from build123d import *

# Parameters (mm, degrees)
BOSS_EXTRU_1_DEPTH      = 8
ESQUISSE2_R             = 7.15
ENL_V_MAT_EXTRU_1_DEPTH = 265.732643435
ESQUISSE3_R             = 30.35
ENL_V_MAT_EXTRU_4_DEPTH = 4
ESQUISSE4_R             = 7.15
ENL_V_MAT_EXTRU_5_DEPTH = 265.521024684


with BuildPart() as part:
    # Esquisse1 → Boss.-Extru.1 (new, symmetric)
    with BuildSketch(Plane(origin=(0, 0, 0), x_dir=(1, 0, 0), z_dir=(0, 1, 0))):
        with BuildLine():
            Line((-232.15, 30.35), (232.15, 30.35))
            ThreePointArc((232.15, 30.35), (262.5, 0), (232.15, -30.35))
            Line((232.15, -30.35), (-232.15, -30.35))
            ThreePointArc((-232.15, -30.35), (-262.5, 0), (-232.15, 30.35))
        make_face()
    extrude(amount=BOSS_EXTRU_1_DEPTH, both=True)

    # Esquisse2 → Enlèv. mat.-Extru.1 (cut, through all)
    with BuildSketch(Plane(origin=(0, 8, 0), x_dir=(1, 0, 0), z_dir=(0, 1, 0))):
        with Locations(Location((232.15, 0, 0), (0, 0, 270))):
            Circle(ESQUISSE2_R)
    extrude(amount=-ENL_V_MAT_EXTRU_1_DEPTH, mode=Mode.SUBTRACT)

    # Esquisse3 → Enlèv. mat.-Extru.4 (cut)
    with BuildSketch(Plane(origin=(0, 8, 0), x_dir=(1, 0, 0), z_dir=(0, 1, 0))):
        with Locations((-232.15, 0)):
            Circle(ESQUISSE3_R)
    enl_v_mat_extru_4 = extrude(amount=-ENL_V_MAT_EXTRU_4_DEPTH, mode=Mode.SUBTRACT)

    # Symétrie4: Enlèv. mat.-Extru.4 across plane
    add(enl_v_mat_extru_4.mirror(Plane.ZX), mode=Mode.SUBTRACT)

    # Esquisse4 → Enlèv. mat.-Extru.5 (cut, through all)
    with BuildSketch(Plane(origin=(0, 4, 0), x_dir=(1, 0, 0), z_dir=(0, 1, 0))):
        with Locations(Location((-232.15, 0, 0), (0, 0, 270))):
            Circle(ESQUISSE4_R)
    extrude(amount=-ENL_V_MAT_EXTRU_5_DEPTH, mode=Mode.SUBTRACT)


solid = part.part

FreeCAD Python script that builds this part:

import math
import FreeCAD as App
import Part
import Sketcher

doc = App.newDocument("Part")
body = doc.addObject("PartDesign::Body", "Body")

# Sketch on XZ plane
sketch1 = body.newObject("Sketcher::SketchObject", "Sketch")
sketch1.AttachmentSupport = (doc.getObject("XZ_Plane"), [""])
sketch1.MapMode = "FlatFace"
sketch1.addGeometry([
    Part.LineSegment(App.Vector(232.15, -30.35, 0), App.Vector(-232.15, -30.35, 0)),
    Part.ArcOfCircle(Part.Circle(App.Vector(-232.15, 0, 0), App.Vector(0, 0, 1), 30.35), math.radians(90), math.radians(270)),
    Part.LineSegment(App.Vector(-232.15, 30.35, 0), App.Vector(232.15, 30.35, 0)),
    Part.ArcOfCircle(Part.Circle(App.Vector(232.15, 0, 0), App.Vector(0, 0, 1), 30.35), math.radians(-90), math.radians(90)),
], False)
sketch1.addConstraint([
    Sketcher.Constraint("Tangent", 0, 2, 1, 2),
    Sketcher.Constraint("Tangent", 1, 1, 2, 1),
    Sketcher.Constraint("Tangent", 2, 2, 3, 2),
    Sketcher.Constraint("Tangent", 3, 1, 0, 1),
    Sketcher.Constraint("Horizontal", 0),
    Sketcher.Constraint("Horizontal", 2),
    Sketcher.Constraint("Symmetric", 1, 3, 3, 3, -1, 1),
    Sketcher.Constraint("Radius", 1, 30.35),
    Sketcher.Constraint("DistanceX", 0, 2, 0, 1, 464.3),
])
pad1 = body.newObject("PartDesign::Pad", "Pad")
pad1.Profile = sketch1
pad1.Length = 16
pad1.Midplane = True

# Sketch on XZ plane
sketch2 = body.newObject("Sketcher::SketchObject", "Sketch001")
sketch2.AttachmentSupport = (doc.getObject("XZ_Plane"), [""])
sketch2.MapMode = "FlatFace"
sketch2.AttachmentOffset = App.Placement(App.Vector(0, 0, -8), App.Rotation())
sketch2.addGeometry(Part.Circle(App.Vector(232.15, 0, 0), App.Vector(0, 0, 1), 7.15), False)
sketch2.addConstraint([
    Sketcher.Constraint("PointOnObject", 0, 3, -1),
    Sketcher.Constraint("Diameter", 0, 14.3),
    Sketcher.Constraint("DistanceX", -1, 1, 0, 3, 232.15),
])
pocket1 = body.newObject("PartDesign::Pocket", "Pocket")
pocket1.Profile = sketch2
pocket1.Type = "ThroughAll"
pocket1.Reversed = True

# Sketch on XZ plane
sketch3 = body.newObject("Sketcher::SketchObject", "Sketch002")
sketch3.AttachmentSupport = (doc.getObject("XZ_Plane"), [""])
sketch3.MapMode = "FlatFace"
sketch3.AttachmentOffset = App.Placement(App.Vector(0, 0, -8), App.Rotation())
sketch3.addGeometry(Part.Circle(App.Vector(-232.15, 0, 0), App.Vector(0, 0, 1), 30.35), False)
sketch3.addConstraint([
    Sketcher.Constraint("PointOnObject", 0, 3, -1),
    Sketcher.Constraint("Diameter", 0, 60.7),
    Sketcher.Constraint("DistanceX", 0, 3, -1, 1, 232.15),
])
pocket2 = body.newObject("PartDesign::Pocket", "Pocket001")
pocket2.Profile = sketch3
pocket2.Length = 4
pocket2.Reversed = True
doc.recompute()

mirrored = body.newObject("PartDesign::Mirrored", "Mirrored")
mirrored.Originals = [pocket2]
mirrored.MirrorPlane = (doc.getObject("XZ_Plane"), [""])
body.Tip = mirrored

# Sketch on XZ plane
sketch4 = body.newObject("Sketcher::SketchObject", "Sketch003")
sketch4.AttachmentSupport = (doc.getObject("XZ_Plane"), [""])
sketch4.MapMode = "FlatFace"
sketch4.AttachmentOffset = App.Placement(App.Vector(0, 0, -4), App.Rotation())
sketch4.addGeometry(Part.Circle(App.Vector(-232.15, 0, 0), App.Vector(0, 0, 1), 7.15), False)
sketch4.addConstraint([
    Sketcher.Constraint("PointOnObject", 0, 3, -1),
    Sketcher.Constraint("Diameter", 0, 14.3),
    Sketcher.Constraint("DistanceX", 0, 3, -1, 1, 232.15),
])
pocket3 = body.newObject("PartDesign::Pocket", "Pocket002")
pocket3.Profile = sketch4
pocket3.Type = "ThroughAll"
pocket3.Reversed = True

doc.recompute()
